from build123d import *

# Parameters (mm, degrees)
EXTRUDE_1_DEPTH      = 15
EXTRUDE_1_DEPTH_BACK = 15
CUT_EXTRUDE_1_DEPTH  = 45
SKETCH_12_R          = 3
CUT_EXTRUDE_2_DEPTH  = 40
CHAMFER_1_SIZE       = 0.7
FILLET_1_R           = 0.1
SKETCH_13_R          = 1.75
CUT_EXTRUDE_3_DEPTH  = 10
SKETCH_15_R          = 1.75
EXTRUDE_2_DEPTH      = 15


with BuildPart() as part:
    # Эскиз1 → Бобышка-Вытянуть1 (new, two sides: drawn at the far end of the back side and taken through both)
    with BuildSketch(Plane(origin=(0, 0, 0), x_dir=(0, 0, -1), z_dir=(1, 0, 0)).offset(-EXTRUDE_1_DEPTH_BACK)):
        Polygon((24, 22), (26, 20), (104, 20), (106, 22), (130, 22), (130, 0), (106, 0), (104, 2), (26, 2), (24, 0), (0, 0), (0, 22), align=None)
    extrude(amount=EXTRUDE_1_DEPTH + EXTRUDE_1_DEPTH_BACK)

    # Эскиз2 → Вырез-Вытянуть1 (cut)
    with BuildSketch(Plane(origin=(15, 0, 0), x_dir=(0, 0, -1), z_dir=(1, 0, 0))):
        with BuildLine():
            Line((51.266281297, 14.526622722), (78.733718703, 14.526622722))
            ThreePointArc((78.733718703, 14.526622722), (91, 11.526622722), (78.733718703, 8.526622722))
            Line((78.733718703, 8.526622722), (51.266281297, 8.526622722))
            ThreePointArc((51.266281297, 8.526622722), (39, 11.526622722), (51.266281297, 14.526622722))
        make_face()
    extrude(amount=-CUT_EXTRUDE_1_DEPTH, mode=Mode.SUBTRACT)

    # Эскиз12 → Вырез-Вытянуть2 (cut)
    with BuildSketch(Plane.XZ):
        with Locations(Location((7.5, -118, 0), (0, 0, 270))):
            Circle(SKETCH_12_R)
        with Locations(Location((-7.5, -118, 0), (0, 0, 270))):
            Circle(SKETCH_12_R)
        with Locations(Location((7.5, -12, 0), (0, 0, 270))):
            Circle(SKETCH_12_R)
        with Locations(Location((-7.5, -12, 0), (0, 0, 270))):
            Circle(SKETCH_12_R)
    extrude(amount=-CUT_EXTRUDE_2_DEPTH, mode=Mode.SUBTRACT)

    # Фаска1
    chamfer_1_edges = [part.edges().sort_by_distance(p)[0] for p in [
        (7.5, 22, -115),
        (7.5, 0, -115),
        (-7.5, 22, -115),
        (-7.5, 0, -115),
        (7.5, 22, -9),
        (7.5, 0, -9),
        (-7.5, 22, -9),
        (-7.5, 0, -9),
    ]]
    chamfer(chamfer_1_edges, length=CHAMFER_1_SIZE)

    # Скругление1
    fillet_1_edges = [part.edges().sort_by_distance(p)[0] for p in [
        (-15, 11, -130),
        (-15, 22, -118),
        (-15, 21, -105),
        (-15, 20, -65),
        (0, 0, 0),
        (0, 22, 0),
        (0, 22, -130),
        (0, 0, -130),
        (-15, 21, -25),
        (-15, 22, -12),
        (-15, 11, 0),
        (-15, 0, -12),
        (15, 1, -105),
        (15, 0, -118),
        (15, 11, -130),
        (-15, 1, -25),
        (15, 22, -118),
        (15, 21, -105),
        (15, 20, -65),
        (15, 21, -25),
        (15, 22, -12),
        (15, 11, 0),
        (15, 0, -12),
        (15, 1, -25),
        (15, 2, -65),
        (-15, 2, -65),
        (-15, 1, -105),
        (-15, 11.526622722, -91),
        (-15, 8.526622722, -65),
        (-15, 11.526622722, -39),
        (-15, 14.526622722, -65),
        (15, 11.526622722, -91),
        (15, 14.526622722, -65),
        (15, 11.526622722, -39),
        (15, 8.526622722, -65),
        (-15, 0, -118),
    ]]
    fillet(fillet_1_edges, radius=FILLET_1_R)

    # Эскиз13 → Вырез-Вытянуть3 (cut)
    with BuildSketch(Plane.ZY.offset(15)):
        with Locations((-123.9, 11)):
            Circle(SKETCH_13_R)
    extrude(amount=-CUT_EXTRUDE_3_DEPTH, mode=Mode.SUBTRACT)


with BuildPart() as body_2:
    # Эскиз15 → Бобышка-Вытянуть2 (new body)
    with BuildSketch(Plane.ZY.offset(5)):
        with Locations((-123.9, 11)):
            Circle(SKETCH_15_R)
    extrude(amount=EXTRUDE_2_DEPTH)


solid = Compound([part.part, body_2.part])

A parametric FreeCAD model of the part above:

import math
import FreeCAD as App
import Part
import Sketcher
from FreeCAD import Vector


def edges_at(feature, points):
    """Names of the edges that pass closest to the given points."""
    edges = feature.Shape.Edges
    near = lambda p: min(range(len(edges)), key=lambda i: edges[i].distToShape(Part.Vertex(*p))[0])
    return sorted({f"Edge{near(p) + 1}" for p in points})

doc = App.newDocument("Part")
body = doc.addObject("PartDesign::Body", "Body")

sketch1 = doc.addObject("Sketcher::SketchObject", "Sketch")
body.addObject(sketch1)
sketch1.AttachmentSupport = (doc.YZ_Plane, [""])
sketch1.MapMode = "FlatFace"
sketch1.addGeometry([
    Part.LineSegment(Vector(20, -26, 0), Vector(22, -24, 0)),
    Part.LineSegment(Vector(22, -24, 0), Vector(22, 0, 0)),
    Part.LineSegment(Vector(22, 0, 0), Vector(0, 0, 0)),
    Part.LineSegment(Vector(0, 0, 0), Vector(0, -24, 0)),
    Part.LineSegment(Vector(0, -24, 0), Vector(2, -26, 0)),
    Part.LineSegment(Vector(2, -26, 0), Vector(2, -104, 0)),
    Part.LineSegment(Vector(2, -104, 0), Vector(0, -106, 0)),
    Part.LineSegment(Vector(0, -106, 0), Vector(0, -130, 0)),
    Part.LineSegment(Vector(0, -130, 0), Vector(22, -130, 0)),
    Part.LineSegment(Vector(22, -130, 0), Vector(22, -106, 0)),
    Part.LineSegment(Vector(22, -106, 0), Vector(20, -104, 0)),
    Part.LineSegment(Vector(20, -104, 0), Vector(20, -26, 0)),
], False)
sketch1.addConstraint([
    Sketcher.Constraint("Coincident", 0, 2, 1, 1),
    Sketcher.Constraint("Coincident", 1, 2, 2, 1),
    Sketcher.Constraint("Coincident", 2, 2, 3, 1),
    Sketcher.Constraint("Coincident", 3, 2, 4, 1),
    Sketcher.Constraint("Coincident", 4, 2, 5, 1),
    Sketcher.Constraint("Coincident", 5, 2, 6, 1),
    Sketcher.Constraint("Coincident", 6, 2, 7, 1),
    Sketcher.Constraint("Coincident", 7, 2, 8, 1),
    Sketcher.Constraint("Coincident", 8, 2, 9, 1),
    Sketcher.Constraint("Coincident", 9, 2, 10, 1),
    Sketcher.Constraint("Coincident", 10, 2, 11, 1),
    Sketcher.Constraint("Coincident", 11, 2, 0, 1),
    Sketcher.Constraint("Vertical", 1),
    Sketcher.Constraint("Horizontal", 2),
    Sketcher.Constraint("Vertical", 3),
    Sketcher.Constraint("Vertical", 5),
    Sketcher.Constraint("Vertical", 7),
    Sketcher.Constraint("Horizontal", 8),
    Sketcher.Constraint("Vertical", 9),
    Sketcher.Constraint("Vertical", 11),
    Sketcher.Constraint("Coincident", 2, 2, -1, 1),
    Sketcher.Constraint("PointOnObject", 6, 2, -2),
    Sketcher.Constraint("Perpendicular", 0, 4),
    Sketcher.Constraint("Perpendicular", 4, 6),
    Sketcher.Constraint("Perpendicular", 6, 10),
    Sketcher.Constraint("Horizontal", 0, 2, 3, 2),
    Sketcher.Constraint("Horizontal", 6, 2, 9, 2),
    Sketcher.Constraint("Horizontal", 5, 2, 10, 2),
    Sketcher.Constraint("Horizontal", 4, 2, 11, 2),
    Sketcher.Constraint("Vertical", 1, 2, 8, 2),
    Sketcher.Constraint("Equal", 3, 7),
    Sketcher.Constraint("DistanceX", 2, 2, 2, 1, 22.0),
    Sketcher.Constraint("DistanceY", 1, 1, 1, 2, 24.0),
    Sketcher.Constraint("DistanceY", 5, 2, 5, 1, 78.0),
    Sketcher.Constraint("DistanceX", -1, 1, 4, 2, 2.0),
])
pad1 = doc.addObject("PartDesign::Pad", "Pad")
body.addObject(pad1)
pad1.Profile = sketch1
pad1.Type = "TwoLengths"
pad1.Length = 15
pad1.Length2 = 15

sketch2 = doc.addObject("Sketcher::SketchObject", "Sketch001")
body.addObject(sketch2)
sketch2.AttachmentSupport = (doc.YZ_Plane, [""])
sketch2.MapMode = "FlatFace"
sketch2.AttachmentOffset = App.Placement(Vector(0, 0, 15), App.Rotation())
sketch2.addGeometry([
    Part.LineSegment(Vector(15, -79, 0), Vector(15, -51, 0)),
    Part.ArcOfCircle(Part.Circle(Vector(12, -46, 0), Vector(0, 0, 1), 6), math.radians(-63), math.radians(243)),
    Part.LineSegment(Vector(9, -51, 0), Vector(9, -79, 0)),
    Part.ArcOfCircle(Part.Circle(Vector(12, -84, 0), Vector(0, 0, 1), 6), math.radians(117), math.radians(423)),
], False)
sketch2.addConstraint([
    Sketcher.Constraint("Coincident", 0, 2, 1, 1),
    Sketcher.Constraint("Coincident", 1, 2, 2, 1),
    Sketcher.Constraint("Coincident", 2, 2, 3, 1),
    Sketcher.Constraint("Coincident", 3, 2, 0, 1),
    Sketcher.Constraint("Vertical", 0),
    Sketcher.Constraint("Vertical", 2),
    Sketcher.Constraint("Equal", 1, 3),
    Sketcher.Constraint("Horizontal", 0, 2, 1, 2),
    Sketcher.Constraint("Horizontal", 2, 2, 3, 2),
    Sketcher.Constraint("Radius", 1, 6.5),
    Sketcher.Constraint("DistanceY", 3, 3, 1, 3, 39.0),
    Sketcher.Constraint("DistanceX", 1, 3, 0, 2, 3.0),
    Sketcher.Constraint("DistanceY", 1, 3, -1, 1, 45.5),
    Sketcher.Constraint("DistanceX", -1, 1, 1, 3, 11.526623),
])
pocket1 = doc.addObject("PartDesign::Pocket", "Pocket")
body.addObject(pocket1)
pocket1.Profile = sketch2
pocket1.Length = 45

sketch3 = doc.addObject("Sketcher::SketchObject", "Sketch002")
body.addObject(sketch3)
sketch3.AttachmentSupport = (doc.XZ_Plane, [""])
sketch3.MapMode = "FlatFace"
sketch3.addGeometry([
    Part.Circle(Vector(7.5, -118, 0), Vector(0, 0, 1), 3),
    Part.Circle(Vector(-7.5, -118, 0), Vector(0, 0, 1), 3),
    Part.Circle(Vector(7.5, -12, 0), Vector(0, 0, 1), 3),
    Part.Circle(Vector(-7.5, -12, 0), Vector(0, 0, 1), 3),
], False)
sketch3.addConstraint([
    Sketcher.Constraint("Equal", 0, 1),
    Sketcher.Constraint("Equal", 1, 2),
    Sketcher.Constraint("Equal", 2, 3),
    Sketcher.Constraint("Symmetric", 0, 3, 1, 3, -2),
    Sketcher.Constraint("Symmetric", 2, 3, 3, 3, -2),
    Sketcher.Constraint("Vertical", 0, 3, 2, 3),
    Sketcher.Constraint("Diameter", 0, 6.0),
    Sketcher.Constraint("DistanceY", 0, 3, -1, 1, 118.0),
    Sketcher.Constraint("DistanceY", 2, 3, -1, 1, 12.0),
    Sketcher.Constraint("DistanceX", 1, 3, 0, 3, 15.0),
])
pocket2 = doc.addObject("PartDesign::Pocket", "Pocket001")
body.addObject(pocket2)
pocket2.Profile = sketch3
pocket2.Length = 40
doc.recompute()

chamfer = doc.addObject("PartDesign::Chamfer", "Chamfer")
body.addObject(chamfer)
chamfer.Base = (pocket2, edges_at(pocket2, [
    (7.5, 22, -115),
    (7.5, 0, -115),
    (-7.5, 22, -115),
    (-7.5, 0, -115),
    (7.5, 22, -9),
    (7.5, 0, -9),
    (-7.5, 22, -9),
    (-7.5, 0, -9),
]))
chamfer.Size = 0.7
doc.recompute()

fillet = doc.addObject("PartDesign::Fillet", "Fillet")
body.addObject(fillet)
fillet.Base = (chamfer, edges_at(chamfer, [
    (-15, 11, -130),
    (-15, 22, -118),
    (-15, 21, -105),
    (-15, 20, -65),
    (0, 0, 0),
    (0, 22, 0),
    (0, 22, -130),
    (0, 0, -130),
    (-15, 21, -25),
    (-15, 22, -12),
    (-15, 11, 0),
    (-15, 0, -12),
    (15, 1, -105),
    (15, 0, -118),
    (15, 11, -130),
    (-15, 1, -25),
    (15, 22, -118),
    (15, 21, -105),
    (15, 20, -65),
    (15, 21, -25),
    (15, 22, -12),
    (15, 11, 0),
    (15, 0, -12),
    (15, 1, -25),
    (15, 2, -65),
    (-15, 2, -65),
    (-15, 1, -105),
    (-15, 11.527, -91),
    (-15, 8.527, -65),
    (-15, 11.527, -39),
    (-15, 14.527, -65),
    (15, 11.527, -91),
    (15, 14.527, -65),
    (15, 11.527, -39),
    (15, 8.527, -65),
    (-15, 0, -118),
]))
fillet.Radius = 0.1

sketch4 = doc.addObject("Sketcher::SketchObject", "Sketch003")
body.addObject(sketch4)
sketch4.AttachmentSupport = (doc.YZ_Plane, [""])
sketch4.MapMode = "FlatFace"
sketch4.AttachmentOffset = App.Placement(Vector(0, 0, -15), App.Rotation())
sketch4.addGeometry(Part.Circle(Vector(11, -123.9, 0), Vector(0, 0, 1), 1.8), False)
sketch4.addConstraint([
    Sketcher.Constraint("Diameter", 0, 3.5),
    Sketcher.Constraint("DistanceX", -1, 1, 0, 3, 11.0),
    Sketcher.Constraint("DistanceY", 0, 3, -1, 1, 123.9),
])
pocket3 = doc.addObject("PartDesign::Pocket", "Pocket002")
body.addObject(pocket3)
pocket3.Profile = sketch4
pocket3.Length = 10
pocket3.Reversed = True
body2 = doc.addObject("PartDesign::Body", "Body001")

sketch5 = doc.addObject("Sketcher::SketchObject", "Sketch004")
body2.addObject(sketch5)
sketch5.AttachmentSupport = (doc.getObject("YZ_Plane001"), [""])
sketch5.MapMode = "FlatFace"
sketch5.AttachmentOffset = App.Placement(Vector(0, 0, -5), App.Rotation())
sketch5.addGeometry(Part.Circle(Vector(11, -123.9, 0), Vector(0, 0, 1), 1.8), False)
sketch5.addConstraint([
    Sketcher.Constraint("Diameter", 0, 3.5),
    Sketcher.Constraint("DistanceX", -1, 1, 0, 3, 11.0),
    Sketcher.Constraint("DistanceY", 0, 3, -1, 1, 123.9),
])
pad2 = doc.addObject("PartDesign::Pad", "Pad001")
body2.addObject(pad2)
pad2.Profile = sketch5
pad2.Length = 15
pad2.Reversed = True

doc.recompute()
